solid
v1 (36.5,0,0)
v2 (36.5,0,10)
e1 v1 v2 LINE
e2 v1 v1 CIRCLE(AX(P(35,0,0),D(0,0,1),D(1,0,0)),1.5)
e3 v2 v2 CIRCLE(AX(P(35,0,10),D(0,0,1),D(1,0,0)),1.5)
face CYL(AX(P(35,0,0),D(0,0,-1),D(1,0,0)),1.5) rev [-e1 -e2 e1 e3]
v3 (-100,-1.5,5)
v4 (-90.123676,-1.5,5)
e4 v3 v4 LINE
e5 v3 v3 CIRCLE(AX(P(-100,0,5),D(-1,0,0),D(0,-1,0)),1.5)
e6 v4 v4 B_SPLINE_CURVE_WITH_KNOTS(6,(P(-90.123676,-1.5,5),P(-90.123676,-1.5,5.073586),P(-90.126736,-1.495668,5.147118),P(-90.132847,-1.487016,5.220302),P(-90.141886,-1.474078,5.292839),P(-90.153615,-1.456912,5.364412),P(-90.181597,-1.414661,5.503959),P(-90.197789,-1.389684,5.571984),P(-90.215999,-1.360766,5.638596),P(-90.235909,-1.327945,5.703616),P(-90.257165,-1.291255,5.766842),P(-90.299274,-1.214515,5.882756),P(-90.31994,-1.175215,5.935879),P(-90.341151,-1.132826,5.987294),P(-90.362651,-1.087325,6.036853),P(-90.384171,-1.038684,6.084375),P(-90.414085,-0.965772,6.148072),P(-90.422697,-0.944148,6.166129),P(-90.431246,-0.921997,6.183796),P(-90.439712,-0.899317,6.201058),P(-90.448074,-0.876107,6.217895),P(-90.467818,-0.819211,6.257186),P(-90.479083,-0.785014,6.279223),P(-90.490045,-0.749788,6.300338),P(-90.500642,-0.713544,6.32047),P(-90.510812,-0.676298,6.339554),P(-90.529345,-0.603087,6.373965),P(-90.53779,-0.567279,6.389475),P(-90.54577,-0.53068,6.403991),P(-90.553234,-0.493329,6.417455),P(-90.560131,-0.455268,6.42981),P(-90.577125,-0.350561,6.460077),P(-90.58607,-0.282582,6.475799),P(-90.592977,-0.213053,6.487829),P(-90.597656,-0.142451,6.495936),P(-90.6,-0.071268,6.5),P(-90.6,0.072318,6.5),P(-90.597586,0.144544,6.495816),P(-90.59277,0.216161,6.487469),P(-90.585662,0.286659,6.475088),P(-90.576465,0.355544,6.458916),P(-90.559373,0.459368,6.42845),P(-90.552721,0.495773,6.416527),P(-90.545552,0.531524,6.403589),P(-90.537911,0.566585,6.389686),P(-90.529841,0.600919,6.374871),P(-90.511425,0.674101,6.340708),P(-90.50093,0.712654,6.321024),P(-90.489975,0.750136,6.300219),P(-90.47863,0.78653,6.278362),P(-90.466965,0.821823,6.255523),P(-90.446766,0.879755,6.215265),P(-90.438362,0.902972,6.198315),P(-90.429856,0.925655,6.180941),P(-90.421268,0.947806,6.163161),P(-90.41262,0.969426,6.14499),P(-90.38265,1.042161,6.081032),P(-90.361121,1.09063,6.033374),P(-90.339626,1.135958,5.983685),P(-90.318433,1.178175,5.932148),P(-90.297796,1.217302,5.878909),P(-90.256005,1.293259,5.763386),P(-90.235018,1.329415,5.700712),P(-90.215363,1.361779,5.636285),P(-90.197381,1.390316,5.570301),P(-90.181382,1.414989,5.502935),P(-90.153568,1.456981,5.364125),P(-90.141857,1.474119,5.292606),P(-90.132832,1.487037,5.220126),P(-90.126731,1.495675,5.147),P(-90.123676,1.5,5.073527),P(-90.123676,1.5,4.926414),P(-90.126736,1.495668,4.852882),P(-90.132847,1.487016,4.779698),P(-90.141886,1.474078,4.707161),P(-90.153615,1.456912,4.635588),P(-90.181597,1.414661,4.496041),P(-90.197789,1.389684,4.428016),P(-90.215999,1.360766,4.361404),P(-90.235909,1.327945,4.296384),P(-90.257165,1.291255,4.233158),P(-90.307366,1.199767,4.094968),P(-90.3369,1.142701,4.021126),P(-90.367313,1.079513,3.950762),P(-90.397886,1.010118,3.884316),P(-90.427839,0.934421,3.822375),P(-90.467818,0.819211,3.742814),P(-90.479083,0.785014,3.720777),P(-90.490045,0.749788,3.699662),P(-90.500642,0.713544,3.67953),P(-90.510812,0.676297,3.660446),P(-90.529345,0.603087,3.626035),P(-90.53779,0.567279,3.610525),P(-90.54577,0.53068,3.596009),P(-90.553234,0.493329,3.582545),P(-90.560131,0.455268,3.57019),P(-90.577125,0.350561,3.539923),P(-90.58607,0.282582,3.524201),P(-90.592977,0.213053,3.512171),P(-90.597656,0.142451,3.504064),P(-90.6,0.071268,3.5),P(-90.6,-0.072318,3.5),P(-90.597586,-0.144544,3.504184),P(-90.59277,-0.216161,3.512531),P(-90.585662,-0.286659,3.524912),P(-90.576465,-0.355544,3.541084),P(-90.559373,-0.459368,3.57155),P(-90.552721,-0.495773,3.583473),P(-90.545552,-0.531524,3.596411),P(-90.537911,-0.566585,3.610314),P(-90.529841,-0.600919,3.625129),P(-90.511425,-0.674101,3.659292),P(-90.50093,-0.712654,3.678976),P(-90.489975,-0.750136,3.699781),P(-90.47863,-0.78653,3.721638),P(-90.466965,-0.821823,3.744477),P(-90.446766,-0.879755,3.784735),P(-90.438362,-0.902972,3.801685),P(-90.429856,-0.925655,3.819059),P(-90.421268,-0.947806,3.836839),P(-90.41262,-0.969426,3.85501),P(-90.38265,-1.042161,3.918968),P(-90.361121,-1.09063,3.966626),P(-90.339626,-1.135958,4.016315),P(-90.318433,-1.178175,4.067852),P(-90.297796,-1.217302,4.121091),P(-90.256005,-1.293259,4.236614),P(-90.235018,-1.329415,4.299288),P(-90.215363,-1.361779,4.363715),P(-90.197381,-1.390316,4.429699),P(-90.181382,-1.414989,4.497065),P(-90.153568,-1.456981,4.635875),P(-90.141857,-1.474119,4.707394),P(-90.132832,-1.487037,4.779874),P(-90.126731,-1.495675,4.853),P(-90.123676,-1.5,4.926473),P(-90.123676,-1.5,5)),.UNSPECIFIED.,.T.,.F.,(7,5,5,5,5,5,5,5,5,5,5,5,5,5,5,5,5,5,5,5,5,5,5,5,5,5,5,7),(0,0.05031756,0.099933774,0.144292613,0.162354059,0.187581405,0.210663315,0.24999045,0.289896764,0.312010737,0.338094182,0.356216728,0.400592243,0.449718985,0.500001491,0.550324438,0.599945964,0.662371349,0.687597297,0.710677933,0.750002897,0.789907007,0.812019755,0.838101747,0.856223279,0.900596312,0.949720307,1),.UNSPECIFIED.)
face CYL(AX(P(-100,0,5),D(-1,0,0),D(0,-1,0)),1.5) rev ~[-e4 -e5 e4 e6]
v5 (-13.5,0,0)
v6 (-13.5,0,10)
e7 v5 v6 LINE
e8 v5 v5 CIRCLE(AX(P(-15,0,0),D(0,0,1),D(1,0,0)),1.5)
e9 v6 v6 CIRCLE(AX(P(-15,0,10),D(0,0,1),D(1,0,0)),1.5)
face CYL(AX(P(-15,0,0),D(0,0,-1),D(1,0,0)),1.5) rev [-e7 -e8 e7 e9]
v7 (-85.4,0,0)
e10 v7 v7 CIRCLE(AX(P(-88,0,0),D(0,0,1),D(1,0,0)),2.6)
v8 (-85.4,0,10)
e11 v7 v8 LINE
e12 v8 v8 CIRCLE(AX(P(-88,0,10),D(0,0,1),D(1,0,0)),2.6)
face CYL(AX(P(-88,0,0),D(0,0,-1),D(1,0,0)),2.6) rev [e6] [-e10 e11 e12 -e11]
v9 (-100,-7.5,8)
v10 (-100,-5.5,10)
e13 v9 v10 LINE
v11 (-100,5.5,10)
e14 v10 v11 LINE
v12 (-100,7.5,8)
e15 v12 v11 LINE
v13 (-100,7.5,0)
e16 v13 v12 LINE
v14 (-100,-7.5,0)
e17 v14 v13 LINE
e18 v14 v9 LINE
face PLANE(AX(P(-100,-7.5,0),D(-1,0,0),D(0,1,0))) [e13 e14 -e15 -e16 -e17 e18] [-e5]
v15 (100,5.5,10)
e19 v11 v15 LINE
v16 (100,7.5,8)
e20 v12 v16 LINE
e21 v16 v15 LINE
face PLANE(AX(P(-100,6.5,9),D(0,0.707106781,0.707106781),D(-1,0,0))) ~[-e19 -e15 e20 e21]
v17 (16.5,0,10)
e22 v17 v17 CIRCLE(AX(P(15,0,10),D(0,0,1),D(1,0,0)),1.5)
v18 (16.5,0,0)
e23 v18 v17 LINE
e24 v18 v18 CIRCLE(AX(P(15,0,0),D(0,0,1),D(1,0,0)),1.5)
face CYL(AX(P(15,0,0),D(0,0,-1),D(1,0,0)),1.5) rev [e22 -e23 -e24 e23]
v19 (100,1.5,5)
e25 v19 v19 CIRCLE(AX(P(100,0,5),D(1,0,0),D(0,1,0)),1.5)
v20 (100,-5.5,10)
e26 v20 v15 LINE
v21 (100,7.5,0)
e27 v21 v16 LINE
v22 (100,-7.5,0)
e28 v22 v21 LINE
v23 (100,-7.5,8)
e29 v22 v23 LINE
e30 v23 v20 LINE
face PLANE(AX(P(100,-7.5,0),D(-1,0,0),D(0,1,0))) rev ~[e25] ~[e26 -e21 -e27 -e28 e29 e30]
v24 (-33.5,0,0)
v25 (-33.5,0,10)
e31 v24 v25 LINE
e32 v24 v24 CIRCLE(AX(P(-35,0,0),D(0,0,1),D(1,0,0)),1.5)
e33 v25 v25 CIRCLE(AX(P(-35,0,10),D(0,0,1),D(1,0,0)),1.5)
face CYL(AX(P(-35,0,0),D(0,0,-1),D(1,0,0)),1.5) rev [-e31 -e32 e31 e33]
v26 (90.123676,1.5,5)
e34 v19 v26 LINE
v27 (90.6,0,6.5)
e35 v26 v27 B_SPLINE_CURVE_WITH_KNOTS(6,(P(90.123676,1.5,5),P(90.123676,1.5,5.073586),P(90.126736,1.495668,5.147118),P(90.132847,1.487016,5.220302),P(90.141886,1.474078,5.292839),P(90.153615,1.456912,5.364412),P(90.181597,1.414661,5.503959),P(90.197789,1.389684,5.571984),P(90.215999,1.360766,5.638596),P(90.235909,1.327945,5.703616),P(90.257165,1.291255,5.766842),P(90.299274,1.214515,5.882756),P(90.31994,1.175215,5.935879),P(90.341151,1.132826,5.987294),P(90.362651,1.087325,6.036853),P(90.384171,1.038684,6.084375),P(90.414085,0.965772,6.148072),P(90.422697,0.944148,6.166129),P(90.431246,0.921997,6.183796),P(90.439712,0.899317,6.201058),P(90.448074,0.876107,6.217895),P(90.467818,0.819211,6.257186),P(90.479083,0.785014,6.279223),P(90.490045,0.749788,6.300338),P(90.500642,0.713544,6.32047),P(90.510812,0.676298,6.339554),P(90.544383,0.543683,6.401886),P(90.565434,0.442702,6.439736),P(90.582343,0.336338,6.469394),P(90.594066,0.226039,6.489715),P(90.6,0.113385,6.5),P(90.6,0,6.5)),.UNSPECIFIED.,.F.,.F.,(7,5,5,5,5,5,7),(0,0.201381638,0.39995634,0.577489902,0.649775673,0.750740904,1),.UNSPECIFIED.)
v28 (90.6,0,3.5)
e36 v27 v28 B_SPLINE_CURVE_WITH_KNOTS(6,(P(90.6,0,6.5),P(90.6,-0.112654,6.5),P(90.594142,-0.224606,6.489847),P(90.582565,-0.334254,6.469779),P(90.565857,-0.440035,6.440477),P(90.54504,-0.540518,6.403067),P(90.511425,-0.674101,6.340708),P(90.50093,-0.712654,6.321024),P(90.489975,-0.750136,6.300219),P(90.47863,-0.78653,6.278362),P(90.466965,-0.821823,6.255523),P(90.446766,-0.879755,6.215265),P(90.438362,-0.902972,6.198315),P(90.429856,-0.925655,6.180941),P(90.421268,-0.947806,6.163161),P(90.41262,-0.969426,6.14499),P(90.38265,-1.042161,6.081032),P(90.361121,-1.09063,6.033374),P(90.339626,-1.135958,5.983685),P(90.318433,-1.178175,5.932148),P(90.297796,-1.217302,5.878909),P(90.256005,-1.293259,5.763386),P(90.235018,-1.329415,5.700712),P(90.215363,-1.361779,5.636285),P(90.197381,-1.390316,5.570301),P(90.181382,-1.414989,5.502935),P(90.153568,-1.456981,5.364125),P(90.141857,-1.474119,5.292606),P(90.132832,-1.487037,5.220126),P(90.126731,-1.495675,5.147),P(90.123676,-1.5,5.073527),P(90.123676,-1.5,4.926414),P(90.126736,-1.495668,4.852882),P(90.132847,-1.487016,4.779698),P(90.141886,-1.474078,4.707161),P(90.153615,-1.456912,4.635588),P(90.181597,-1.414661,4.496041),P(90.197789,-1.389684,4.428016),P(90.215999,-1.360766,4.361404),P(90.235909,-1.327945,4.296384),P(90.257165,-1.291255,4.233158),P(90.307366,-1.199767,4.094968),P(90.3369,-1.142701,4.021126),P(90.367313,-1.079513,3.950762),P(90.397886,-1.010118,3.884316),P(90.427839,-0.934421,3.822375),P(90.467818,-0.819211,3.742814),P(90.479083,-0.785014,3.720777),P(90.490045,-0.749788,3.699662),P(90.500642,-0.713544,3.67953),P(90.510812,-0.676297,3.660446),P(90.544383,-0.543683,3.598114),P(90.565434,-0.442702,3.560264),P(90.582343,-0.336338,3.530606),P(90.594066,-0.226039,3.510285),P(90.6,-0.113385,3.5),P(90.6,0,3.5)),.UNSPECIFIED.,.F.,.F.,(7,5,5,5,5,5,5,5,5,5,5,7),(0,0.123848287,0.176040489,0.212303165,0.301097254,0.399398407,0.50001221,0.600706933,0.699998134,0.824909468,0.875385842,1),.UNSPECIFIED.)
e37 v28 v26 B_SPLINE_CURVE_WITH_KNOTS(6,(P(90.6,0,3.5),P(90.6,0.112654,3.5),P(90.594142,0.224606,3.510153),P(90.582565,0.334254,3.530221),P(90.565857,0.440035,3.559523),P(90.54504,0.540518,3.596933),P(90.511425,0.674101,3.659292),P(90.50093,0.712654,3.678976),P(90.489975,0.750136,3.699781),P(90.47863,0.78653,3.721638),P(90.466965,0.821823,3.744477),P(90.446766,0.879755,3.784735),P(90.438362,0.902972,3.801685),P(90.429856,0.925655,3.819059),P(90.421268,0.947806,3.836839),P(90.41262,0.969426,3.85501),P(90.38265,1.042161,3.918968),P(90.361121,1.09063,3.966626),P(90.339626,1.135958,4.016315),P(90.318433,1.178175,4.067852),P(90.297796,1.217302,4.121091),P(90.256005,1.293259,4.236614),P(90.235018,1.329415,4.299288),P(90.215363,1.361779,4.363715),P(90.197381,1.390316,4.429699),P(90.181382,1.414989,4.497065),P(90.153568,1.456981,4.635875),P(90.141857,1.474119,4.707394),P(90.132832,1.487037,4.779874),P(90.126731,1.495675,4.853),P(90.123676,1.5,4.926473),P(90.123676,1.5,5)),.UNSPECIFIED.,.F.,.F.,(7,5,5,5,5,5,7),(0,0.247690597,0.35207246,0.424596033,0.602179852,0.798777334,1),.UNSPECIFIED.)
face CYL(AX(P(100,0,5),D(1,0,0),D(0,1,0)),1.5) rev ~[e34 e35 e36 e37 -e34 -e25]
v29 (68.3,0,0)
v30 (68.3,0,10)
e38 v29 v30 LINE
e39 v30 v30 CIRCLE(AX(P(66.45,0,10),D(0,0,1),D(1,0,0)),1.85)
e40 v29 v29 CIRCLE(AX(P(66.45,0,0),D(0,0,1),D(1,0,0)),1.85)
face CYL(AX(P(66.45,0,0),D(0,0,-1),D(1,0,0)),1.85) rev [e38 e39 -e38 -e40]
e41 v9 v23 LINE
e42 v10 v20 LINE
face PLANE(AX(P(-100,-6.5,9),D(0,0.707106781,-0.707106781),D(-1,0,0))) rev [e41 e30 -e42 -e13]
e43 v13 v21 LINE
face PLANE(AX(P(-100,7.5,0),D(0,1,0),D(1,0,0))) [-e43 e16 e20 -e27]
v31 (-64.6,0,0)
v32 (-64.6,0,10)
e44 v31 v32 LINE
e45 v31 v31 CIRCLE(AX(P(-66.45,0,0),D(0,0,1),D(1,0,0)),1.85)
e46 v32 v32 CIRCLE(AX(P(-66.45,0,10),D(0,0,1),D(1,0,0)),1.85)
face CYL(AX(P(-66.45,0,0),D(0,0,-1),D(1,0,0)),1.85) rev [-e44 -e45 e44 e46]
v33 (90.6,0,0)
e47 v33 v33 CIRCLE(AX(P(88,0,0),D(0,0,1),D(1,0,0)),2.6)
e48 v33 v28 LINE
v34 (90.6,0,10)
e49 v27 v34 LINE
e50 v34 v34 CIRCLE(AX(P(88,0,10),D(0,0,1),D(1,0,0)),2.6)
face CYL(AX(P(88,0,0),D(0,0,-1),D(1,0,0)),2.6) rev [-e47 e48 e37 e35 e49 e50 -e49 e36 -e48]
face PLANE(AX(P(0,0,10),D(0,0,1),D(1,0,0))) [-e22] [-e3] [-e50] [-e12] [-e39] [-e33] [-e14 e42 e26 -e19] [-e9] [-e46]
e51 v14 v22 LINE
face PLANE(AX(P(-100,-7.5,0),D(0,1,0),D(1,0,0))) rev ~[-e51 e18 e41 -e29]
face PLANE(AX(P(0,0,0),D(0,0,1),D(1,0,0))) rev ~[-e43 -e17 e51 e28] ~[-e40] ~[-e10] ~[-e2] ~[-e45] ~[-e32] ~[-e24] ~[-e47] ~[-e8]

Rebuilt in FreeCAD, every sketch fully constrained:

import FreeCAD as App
import Part
import Sketcher
from FreeCAD import Vector
Q = App.Units.Quantity


def edges_at(feature, points):
    """Names of the edges that pass closest to the given points."""
    edges = feature.Shape.Edges
    near = lambda p: min(range(len(edges)), key=lambda i: edges[i].distToShape(Part.Vertex(*p))[0])
    return sorted({f"Edge{near(p) + 1}" for p in points})


def add_polygon(sketch, points):
    """Adds a closed chain of lines whose ends are joined by coincident constraints."""
    first, n = sketch.GeometryCount, len(points)
    for a, b in zip(points, points[1:] + points[:1]):
        sketch.addGeometry(Part.LineSegment(App.Vector(*a, 0), App.Vector(*b, 0)), False)
    for i in range(n):
        sketch.addConstraint(Sketcher.Constraint("Coincident", first + i, 2, first + (i + 1) % n, 1))

doc = App.newDocument("Part")
params = doc.addObject("Spreadsheet::Sheet", "Params")
for row, (alias, value) in enumerate([
    ("sketch1_diameter", "3 mm"),
    ("sketch1_diameter2", "5.2 mm"),
    ("sketch1_diameter3", "3.7 mm"),
    ("sketch1_width", "200 mm"),
    ("sketch1_height", "15 mm"),
    ("pad1_length", "10 mm"),
    ("chamfer_size", "2 mm"),
    ("sketch2_diameter", "3 mm"),
    ("pocket1_length", "10 mm"),
    ("sketch3_diameter", "3 mm"),
    ("pocket2_length", "10 mm"),
], start=1):
    params.set(f"A{row}", alias)
    params.set(f"B{row}", "=" + value)
    params.setAlias(f"B{row}", alias)

body = doc.addObject("PartDesign::Body", "Body")

sketch1 = doc.addObject("Sketcher::SketchObject", "Sketch")
body.addObject(sketch1)
sketch1.AttachmentSupport = (doc.XY_Plane, [""])
sketch1.MapMode = "FlatFace"
add_polygon(sketch1, [(-100, 7.5), (-100, -7.5), (100, -7.5), (100, 7.5)])
sketch1.addGeometry(Part.Circle(Vector(-88, 0, 0), Vector(0, 0, 1), 2.6), False)
sketch1.addGeometry(Part.Circle(Vector(-66.45, 0, 0), Vector(0, 0, 1), 1.85), False)
sketch1.addGeometry(Part.Circle(Vector(-35, 0, 0), Vector(0, 0, 1), 1.5), False)
sketch1.addGeometry(Part.Circle(Vector(-15, 0, 0), Vector(0, 0, 1), 1.5), False)
sketch1.addGeometry(Part.Circle(Vector(15, 0, 0), Vector(0, 0, 1), 1.5), False)
sketch1.addGeometry(Part.Circle(Vector(35, 0, 0), Vector(0, 0, 1), 1.5), False)
sketch1.addGeometry(Part.Circle(Vector(66.45, 0, 0), Vector(0, 0, 1), 1.85), False)
sketch1.addGeometry(Part.Circle(Vector(88, 0, 0), Vector(0, 0, 1), 2.6), False)
sketch1.addConstraint([
    Sketcher.Constraint("Vertical", 0),
    Sketcher.Constraint("Horizontal", 1),
    Sketcher.Constraint("Vertical", 2),
    Sketcher.Constraint("Horizontal", 3),
    Sketcher.Constraint("Equal", 6, 7),
    Sketcher.Constraint("Equal", 7, 8),
    Sketcher.Constraint("Equal", 8, 9),
    Sketcher.Constraint("Equal", 5, 10),
    Sketcher.Constraint("Equal", 4, 11),
    Sketcher.Constraint("Symmetric", 7, 3, 8, 3, -1, 1),
    Sketcher.Constraint("Symmetric", 6, 3, 9, 3, -1, 1),
    Sketcher.Constraint("Symmetric", 5, 3, 10, 3, -1, 1),
    Sketcher.Constraint("Symmetric", 4, 3, 11, 3, -1, 1),
    Sketcher.Constraint("Symmetric", 0, 2, 2, 2, -1, 1),
    Sketcher.Constraint("PointOnObject", 4, 3, -1),
    Sketcher.Constraint("PointOnObject", 5, 3, -1),
    Sketcher.Constraint("PointOnObject", 6, 3, -1),
    Sketcher.Constraint("PointOnObject", 7, 3, -1),
    Sketcher.Constraint("Diameter", 6, Q("3 mm")),
    Sketcher.Constraint("Diameter", 4, Q("5.2 mm")),
    Sketcher.Constraint("Diameter", 5, Q("3.7 mm")),
    Sketcher.Constraint("DistanceX", 1, 1, 1, 2, Q("200 mm")),
    Sketcher.Constraint("DistanceY", 0, 2, 0, 1, Q("15 mm")),
    Sketcher.Constraint("DistanceX", 4, 3, -1, 1, Q("88 mm")),
    Sketcher.Constraint("DistanceX", 6, 3, -1, 1, Q("35 mm")),
    Sketcher.Constraint("DistanceX", 7, 3, -1, 1, Q("15 mm")),
    Sketcher.Constraint("DistanceX", 5, 3, 10, 3, Q("132.9 mm")),
])
sketch1.setExpression("Constraints[22]", "Params.sketch1_diameter")
sketch1.setExpression("Constraints[23]", "Params.sketch1_diameter2")
sketch1.setExpression("Constraints[24]", "Params.sketch1_diameter3")
sketch1.setExpression("Constraints[25]", "Params.sketch1_width")
sketch1.setExpression("Constraints[26]", "Params.sketch1_height")
pad1 = doc.addObject("PartDesign::Pad", "Pad")
body.addObject(pad1)
pad1.Profile = sketch1
pad1.setExpression("Length", "Params.pad1_length")
doc.recompute()

chamfer = doc.addObject("PartDesign::Chamfer", "Chamfer")
body.addObject(chamfer)
chamfer.Base = (pad1, edges_at(pad1, [(0, 7.5, 10), (0, -7.5, 10)]))
chamfer.setExpression("Size", "Params.chamfer_size")

sketch2 = doc.addObject("Sketcher::SketchObject", "Sketch001")
body.addObject(sketch2)
sketch2.AttachmentSupport = (doc.YZ_Plane, [""])
sketch2.MapMode = "FlatFace"
sketch2.AttachmentOffset = App.Placement(Vector(0, 0, 100), App.Rotation())
sketch2.addGeometry(Part.Circle(Vector(0, 5, 0), Vector(0, 0, 1), 1.5), False)
sketch2.addConstraint([
    Sketcher.Constraint("PointOnObject", 0, 3, -2),
    Sketcher.Constraint("Diameter", 0, Q("3 mm")),
    Sketcher.Constraint("DistanceY", -1, 1, 0, 3, Q("5 mm")),
])
sketch2.setExpression("Constraints[1]", "Params.sketch2_diameter")
pocket1 = doc.addObject("PartDesign::Pocket", "Pocket")
body.addObject(pocket1)
pocket1.Profile = sketch2
pocket1.setExpression("Length", "Params.pocket1_length")

sketch3 = doc.addObject("Sketcher::SketchObject", "Sketch002")
body.addObject(sketch3)
sketch3.AttachmentSupport = (doc.YZ_Plane, [""])
sketch3.MapMode = "FlatFace"
sketch3.AttachmentOffset = App.Placement(Vector(0, 0, -100), App.Rotation())
sketch3.addGeometry(Part.Circle(Vector(0, 5, 0), Vector(0, 0, 1), 1.5), False)
sketch3.addConstraint([
    Sketcher.Constraint("PointOnObject", 0, 3, -2),
    Sketcher.Constraint("Diameter", 0, Q("3 mm")),
    Sketcher.Constraint("DistanceY", -1, 1, 0, 3, Q("5 mm")),
])
sketch3.setExpression("Constraints[1]", "Params.sketch3_diameter")
pocket2 = doc.addObject("PartDesign::Pocket", "Pocket001")
body.addObject(pocket2)
pocket2.Profile = sketch3
pocket2.setExpression("Length", "Params.pocket2_length")
pocket2.Reversed = True

doc.recompute()
